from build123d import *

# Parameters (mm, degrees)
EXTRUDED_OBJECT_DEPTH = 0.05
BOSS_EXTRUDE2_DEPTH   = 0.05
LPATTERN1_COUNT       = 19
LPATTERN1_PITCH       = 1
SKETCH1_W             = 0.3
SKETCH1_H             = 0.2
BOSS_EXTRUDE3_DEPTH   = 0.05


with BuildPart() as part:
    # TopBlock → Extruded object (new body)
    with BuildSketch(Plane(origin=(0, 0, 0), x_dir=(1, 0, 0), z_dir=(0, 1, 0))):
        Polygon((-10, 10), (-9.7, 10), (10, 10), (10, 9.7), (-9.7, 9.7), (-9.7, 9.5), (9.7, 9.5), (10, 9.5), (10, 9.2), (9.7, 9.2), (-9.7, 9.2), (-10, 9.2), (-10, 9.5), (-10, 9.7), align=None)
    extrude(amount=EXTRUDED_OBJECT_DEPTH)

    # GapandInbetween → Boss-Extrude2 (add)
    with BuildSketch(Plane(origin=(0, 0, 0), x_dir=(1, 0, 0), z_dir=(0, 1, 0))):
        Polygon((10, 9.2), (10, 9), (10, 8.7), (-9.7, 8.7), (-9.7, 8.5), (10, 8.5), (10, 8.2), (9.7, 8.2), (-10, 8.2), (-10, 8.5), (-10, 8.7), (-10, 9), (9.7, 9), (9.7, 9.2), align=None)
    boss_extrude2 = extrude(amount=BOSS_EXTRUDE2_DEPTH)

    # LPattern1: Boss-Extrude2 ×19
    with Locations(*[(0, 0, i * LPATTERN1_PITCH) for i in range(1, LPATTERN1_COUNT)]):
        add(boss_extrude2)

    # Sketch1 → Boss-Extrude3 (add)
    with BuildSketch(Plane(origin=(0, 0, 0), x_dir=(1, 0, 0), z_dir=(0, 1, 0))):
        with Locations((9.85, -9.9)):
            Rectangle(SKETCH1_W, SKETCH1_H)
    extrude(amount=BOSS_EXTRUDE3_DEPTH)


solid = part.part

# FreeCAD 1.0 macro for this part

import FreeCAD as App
import Part
import Sketcher


def add_polygon(sketch, points):
    """Adds a closed chain of lines whose ends are joined by coincident constraints."""
    first, n = sketch.GeometryCount, len(points)
    for a, b in zip(points, points[1:] + points[:1]):
        sketch.addGeometry(Part.LineSegment(App.Vector(*a, 0), App.Vector(*b, 0)), False)
    for i in range(n):
        sketch.addConstraint(Sketcher.Constraint("Coincident", first + i, 2, first + (i + 1) % n, 1))

doc = App.newDocument("Part")
params = doc.addObject("Spreadsheet::Sheet", "Params")
for row, (alias, value) in enumerate([
    ("sketch1_width", "20 mm"),
    ("sketch1_width2", "19.7 mm"),
    ("sketch1_height", "0.8 mm"),
    ("sketch1_height2", "0.3 mm"),
    ("pad1_length", "0.05 mm"),
    ("sketch2_width", "20 mm"),
    ("sketch2_width2", "0.3 mm"),
    ("sketch2_height", "0.5 mm"),
    ("sketch2_height2", "0.2 mm"),
    ("pad2_length", "0.05 mm"),
    ("linearpattern_pitch", "1 mm"),
    ("sketch3_width", "0.3 mm"),
    ("sketch3_height", "0.2 mm"),
    ("pad3_length", "0.05 mm"),
], start=1):
    params.set(f"A{row}", alias)
    params.set(f"B{row}", "=" + value)
    params.setAlias(f"B{row}", alias)

body = doc.addObject("PartDesign::Body", "Body")

# Sketch on XZ plane
sketch1 = body.newObject("Sketcher::SketchObject", "Sketch")
sketch1.AttachmentSupport = (doc.getObject("XZ_Plane"), [""])
sketch1.MapMode = "FlatFace"
add_polygon(sketch1, [(10, -10), (-10, -10), (-10, -9.2), (10, -9.2), (10, -9.5), (-9.7, -9.5), (-9.7, -9.7), (10, -9.7)])  # lines 0-7
sketch1.addConstraint([
    Sketcher.Constraint("Horizontal", 0),
    Sketcher.Constraint("Vertical", 1),
    Sketcher.Constraint("Horizontal", 2),
    Sketcher.Constraint("Vertical", 3),
    Sketcher.Constraint("Horizontal", 4),
    Sketcher.Constraint("Vertical", 5),
    Sketcher.Constraint("Horizontal", 6),
    Sketcher.Constraint("Vertical", 7),
    Sketcher.Constraint("Vertical", 3, 2, 6, 2),
    Sketcher.Constraint("Equal", 3, 7),
    Sketcher.Constraint("DistanceX", 0, 2, 0, 1, 20.0),
    Sketcher.Constraint("DistanceX", 4, 2, 4, 1, 19.7),
    Sketcher.Constraint("DistanceY", 1, 1, 1, 2, 0.8),
    Sketcher.Constraint("DistanceY", 3, 2, 3, 1, 0.3),
    Sketcher.Constraint("DistanceX", 0, 2, -1, 1, 10.0),
    Sketcher.Constraint("DistanceY", 0, 2, -1, 1, 10.0),
])
sketch1.setExpression("Constraints[18]", "Params.sketch1_width")
sketch1.setExpression("Constraints[19]", "Params.sketch1_width2")
sketch1.setExpression("Constraints[20]", "Params.sketch1_height")
sketch1.setExpression("Constraints[21]", "Params.sketch1_height2")
pad1 = body.newObject("PartDesign::Pad", "Pad")
pad1.Profile = sketch1
pad1.setExpression("Length", "Params.pad1_length")
pad1.Reversed = True

# Sketch on XZ plane
sketch2 = body.newObject("Sketcher::SketchObject", "Sketch001")
sketch2.AttachmentSupport = (doc.getObject("XZ_Plane"), [""])
sketch2.MapMode = "FlatFace"
add_polygon(sketch2, [(10, -8.7), (10, -9.2), (9.7, -9.2), (9.7, -9), (-10, -9), (-10, -8.2), (10, -8.2), (10, -8.5), (-9.7, -8.5), (-9.7, -8.7)])  # lines 0-9
sketch2.addConstraint([
    Sketcher.Constraint("Vertical", 0),
    Sketcher.Constraint("Horizontal", 1),
    Sketcher.Constraint("Vertical", 2),
    Sketcher.Constraint("Horizontal", 3),
    Sketcher.Constraint("Vertical", 4),
    Sketcher.Constraint("Horizontal", 5),
    Sketcher.Constraint("Vertical", 6),
    Sketcher.Constraint("Horizontal", 7),
    Sketcher.Constraint("Vertical", 8),
    Sketcher.Constraint("Horizontal", 9),
    Sketcher.Constraint("Vertical", 0, 2, 5, 2),
    Sketcher.Constraint("Equal", 3, 7),
    Sketcher.Constraint("Equal", 1, 6),
    Sketcher.Constraint("Equal", 2, 8),
    Sketcher.Constraint("DistanceX", 5, 1, 5, 2, 20.0),
    Sketcher.Constraint("DistanceX", 1, 2, 1, 1, 0.3),
    Sketcher.Constraint("DistanceY", 0, 2, 0, 1, 0.5),
    Sketcher.Constraint("DistanceY", 2, 1, 2, 2, 0.2),
    Sketcher.Constraint("DistanceX", -1, 1, 0, 2, 10.0),
    Sketcher.Constraint("DistanceY", 2, 2, -1, 1, 9.0),
])
sketch2.setExpression("Constraints[24]", "Params.sketch2_width")
sketch2.setExpression("Constraints[25]", "Params.sketch2_width2")
sketch2.setExpression("Constraints[26]", "Params.sketch2_height")
sketch2.setExpression("Constraints[27]", "Params.sketch2_height2")
pad2 = body.newObject("PartDesign::Pad", "Pad001")
pad2.Profile = sketch2
pad2.setExpression("Length", "Params.pad2_length")
pad2.Reversed = True
doc.recompute()

linearpattern = body.newObject("PartDesign::LinearPattern", "LinearPattern")
linearpattern.Originals = [pad2]
linearpattern.Direction = (doc.getObject("Z_Axis"), [""])
linearpattern.Mode = "offset"
linearpattern.setExpression("Offset", "Params.linearpattern_pitch")
linearpattern.Occurrences = 19
body.Tip = linearpattern

# Sketch on XZ plane
sketch3 = body.newObject("Sketcher::SketchObject", "Sketch002")
sketch3.AttachmentSupport = (doc.getObject("XZ_Plane"), [""])
sketch3.MapMode = "FlatFace"
add_polygon(sketch3, [(9.7, 9.8), (9.7, 10), (10, 10), (10, 9.8)])  # lines 0-3
sketch3.addConstraint([
    Sketcher.Constraint("Vertical", 0),
    Sketcher.Constraint("Horizontal", 1),
    Sketcher.Constraint("Vertical", 2),
    Sketcher.Constraint("Horizontal", 3),
    Sketcher.Constraint("DistanceX", 1, 1, 1, 2, 0.3),
    Sketcher.Constraint("DistanceY", 0, 1, 0, 2, 0.2),
    Sketcher.Constraint("DistanceY", -1, 1, 0, 2, 10.0),
    Sketcher.Constraint("DistanceX", -1, 1, 1, 2, 10.0),
])
sketch3.setExpression("Constraints[8]", "Params.sketch3_width")
sketch3.setExpression("Constraints[9]", "Params.sketch3_height")
pad3 = body.newObject("PartDesign::Pad", "Pad002")
pad3.Profile = sketch3
pad3.setExpression("Length", "Params.pad3_length")
pad3.Reversed = True

doc.recompute()
